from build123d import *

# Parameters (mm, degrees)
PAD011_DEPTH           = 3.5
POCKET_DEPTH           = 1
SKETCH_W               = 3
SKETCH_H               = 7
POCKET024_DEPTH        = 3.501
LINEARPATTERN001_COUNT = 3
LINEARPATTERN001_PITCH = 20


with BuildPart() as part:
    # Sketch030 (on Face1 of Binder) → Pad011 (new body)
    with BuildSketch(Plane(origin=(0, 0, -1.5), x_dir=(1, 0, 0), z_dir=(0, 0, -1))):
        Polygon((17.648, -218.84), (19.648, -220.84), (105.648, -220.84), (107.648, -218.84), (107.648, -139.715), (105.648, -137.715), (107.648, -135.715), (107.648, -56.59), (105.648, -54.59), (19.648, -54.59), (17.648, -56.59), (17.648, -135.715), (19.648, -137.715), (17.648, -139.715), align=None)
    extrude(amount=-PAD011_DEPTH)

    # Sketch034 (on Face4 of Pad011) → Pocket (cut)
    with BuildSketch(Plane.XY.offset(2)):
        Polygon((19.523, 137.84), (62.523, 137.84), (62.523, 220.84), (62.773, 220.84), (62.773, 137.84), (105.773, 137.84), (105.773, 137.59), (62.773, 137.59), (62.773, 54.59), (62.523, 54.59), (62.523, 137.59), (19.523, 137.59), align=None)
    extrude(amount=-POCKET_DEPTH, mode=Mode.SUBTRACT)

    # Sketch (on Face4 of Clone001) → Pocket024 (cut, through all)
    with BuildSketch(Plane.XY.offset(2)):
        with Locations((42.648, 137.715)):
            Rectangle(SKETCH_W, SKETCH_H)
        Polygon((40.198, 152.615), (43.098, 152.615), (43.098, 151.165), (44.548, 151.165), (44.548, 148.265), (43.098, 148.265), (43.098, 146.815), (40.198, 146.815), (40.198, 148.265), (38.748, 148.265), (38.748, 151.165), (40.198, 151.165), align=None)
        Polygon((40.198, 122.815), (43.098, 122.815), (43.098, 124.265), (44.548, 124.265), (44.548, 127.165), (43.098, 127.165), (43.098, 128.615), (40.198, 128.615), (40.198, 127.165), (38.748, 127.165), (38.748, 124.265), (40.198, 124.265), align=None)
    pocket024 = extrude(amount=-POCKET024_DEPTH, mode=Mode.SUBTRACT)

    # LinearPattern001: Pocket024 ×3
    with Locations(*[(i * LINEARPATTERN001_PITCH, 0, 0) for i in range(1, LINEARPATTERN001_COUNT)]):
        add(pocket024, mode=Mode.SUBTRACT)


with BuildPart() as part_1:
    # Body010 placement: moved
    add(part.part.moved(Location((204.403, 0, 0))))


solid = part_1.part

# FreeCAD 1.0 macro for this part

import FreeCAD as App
import Part
import Sketcher

V = App.Vector

doc = App.newDocument("Part")
body = doc.addObject("PartDesign::Body", "Body")

sketch1 = doc.addObject("Sketcher::SketchObject", "Sketch")
body.addObject(sketch1)
sketch1.AttachmentSupport = (doc.XY_Plane, [""])
sketch1.MapMode = "FlatFace"
sketch1.AttachmentOffset = App.Placement(V(0, 0, -1.5), App.Rotation())
sketch1.addGeometry([
    Part.LineSegment(V(17.6, 218.8, 0), V(19.6, 220.8, 0)),
    Part.LineSegment(V(19.6, 220.8, 0), V(105.6, 220.8, 0)),
    Part.LineSegment(V(105.6, 220.8, 0), V(107.6, 218.8, 0)),
    Part.LineSegment(V(107.6, 218.8, 0), V(107.6, 139.7, 0)),
    Part.LineSegment(V(107.6, 139.7, 0), V(105.6, 137.7, 0)),
    Part.LineSegment(V(105.6, 137.7, 0), V(107.6, 135.7, 0)),
    Part.LineSegment(V(107.6, 135.7, 0), V(107.6, 56.6, 0)),
    Part.LineSegment(V(107.6, 56.6, 0), V(105.6, 54.6, 0)),
    Part.LineSegment(V(105.6, 54.6, 0), V(19.6, 54.6, 0)),
    Part.LineSegment(V(19.6, 54.6, 0), V(17.6, 56.6, 0)),
    Part.LineSegment(V(17.6, 56.6, 0), V(17.6, 135.7, 0)),
    Part.LineSegment(V(17.6, 135.7, 0), V(19.6, 137.7, 0)),
    Part.LineSegment(V(19.6, 137.7, 0), V(17.6, 139.7, 0)),
    Part.LineSegment(V(17.6, 139.7, 0), V(17.6, 218.8, 0)),
], False)
sketch1.addConstraint([
    Sketcher.Constraint("Coincident", 0, 2, 1, 1),
    Sketcher.Constraint("Coincident", 1, 2, 2, 1),
    Sketcher.Constraint("Coincident", 2, 2, 3, 1),
    Sketcher.Constraint("Coincident", 3, 2, 4, 1),
    Sketcher.Constraint("Coincident", 4, 2, 5, 1),
    Sketcher.Constraint("Coincident", 5, 2, 6, 1),
    Sketcher.Constraint("Coincident", 6, 2, 7, 1),
    Sketcher.Constraint("Coincident", 7, 2, 8, 1),
    Sketcher.Constraint("Coincident", 8, 2, 9, 1),
    Sketcher.Constraint("Coincident", 9, 2, 10, 1),
    Sketcher.Constraint("Coincident", 10, 2, 11, 1),
    Sketcher.Constraint("Coincident", 11, 2, 12, 1),
    Sketcher.Constraint("Coincident", 12, 2, 13, 1),
    Sketcher.Constraint("Coincident", 13, 2, 0, 1),
    Sketcher.Constraint("Horizontal", 1),
    Sketcher.Constraint("Vertical", 3),
    Sketcher.Constraint("Vertical", 6),
    Sketcher.Constraint("Horizontal", 8),
    Sketcher.Constraint("Vertical", 10),
    Sketcher.Constraint("Vertical", 13),
    Sketcher.Constraint("Perpendicular", 0, 2),
    Sketcher.Constraint("Perpendicular", 2, 4),
    Sketcher.Constraint("Perpendicular", 4, 5),
    Sketcher.Constraint("Perpendicular", 5, 7),
    Sketcher.Constraint("Perpendicular", 7, 9),
    Sketcher.Constraint("Perpendicular", 9, 11),
    Sketcher.Constraint("Perpendicular", 11, 12),
    Sketcher.Constraint("Horizontal", 6, 2, 9, 2),
    Sketcher.Constraint("Horizontal", 5, 2, 10, 2),
    Sketcher.Constraint("Horizontal", 4, 2, 11, 2),
    Sketcher.Constraint("Horizontal", 3, 2, 12, 2),
    Sketcher.Constraint("Horizontal", 2, 2, 13, 2),
    Sketcher.Constraint("Vertical", 1, 2, 4, 2),
    Sketcher.Constraint("Vertical", 3, 2, 5, 2),
    Sketcher.Constraint("Vertical", 4, 2, 7, 2),
    Sketcher.Constraint("Vertical", 0, 2, 8, 2),
    Sketcher.Constraint("Equal", 3, 6),
    Sketcher.Constraint("DistanceX", 1, 1, 1, 2, 86.0),
    Sketcher.Constraint("DistanceX", 1, 2, 2, 2, 2.0),
    Sketcher.Constraint("DistanceY", 3, 2, 3, 1, 79.125),
    Sketcher.Constraint("DistanceY", -1, 1, 0, 2, 220.84),
    Sketcher.Constraint("DistanceX", -1, 1, 0, 2, 19.648),
])
pad1 = doc.addObject("PartDesign::Pad", "Pad")
body.addObject(pad1)
pad1.Profile = sketch1
pad1.Length = 3.5

sketch2 = doc.addObject("Sketcher::SketchObject", "Sketch001")
body.addObject(sketch2)
sketch2.AttachmentSupport = (doc.XY_Plane, [""])
sketch2.MapMode = "FlatFace"
sketch2.AttachmentOffset = App.Placement(V(0, 0, 2), App.Rotation())
sketch2.addGeometry([
    Part.LineSegment(V(62.52, 137.84, 0), V(19.52, 137.84, 0)),
    Part.LineSegment(V(19.52, 137.84, 0), V(19.52, 137.59, 0)),
    Part.LineSegment(V(19.52, 137.59, 0), V(62.52, 137.59, 0)),
    Part.LineSegment(V(62.52, 137.59, 0), V(62.52, 54.59, 0)),
    Part.LineSegment(V(62.52, 54.59, 0), V(62.77, 54.59, 0)),
    Part.LineSegment(V(62.77, 54.59, 0), V(62.77, 137.59, 0)),
    Part.LineSegment(V(62.77, 137.59, 0), V(105.77, 137.59, 0)),
    Part.LineSegment(V(105.77, 137.59, 0), V(105.77, 137.84, 0)),
    Part.LineSegment(V(105.77, 137.84, 0), V(62.77, 137.84, 0)),
    Part.LineSegment(V(62.77, 137.84, 0), V(62.77, 220.84, 0)),
    Part.LineSegment(V(62.77, 220.84, 0), V(62.52, 220.84, 0)),
    Part.LineSegment(V(62.52, 220.84, 0), V(62.52, 137.84, 0)),
], False)
sketch2.addConstraint([
    Sketcher.Constraint("Coincident", 0, 2, 1, 1),
    Sketcher.Constraint("Coincident", 1, 2, 2, 1),
    Sketcher.Constraint("Coincident", 2, 2, 3, 1),
    Sketcher.Constraint("Coincident", 3, 2, 4, 1),
    Sketcher.Constraint("Coincident", 4, 2, 5, 1),
    Sketcher.Constraint("Coincident", 5, 2, 6, 1),
    Sketcher.Constraint("Coincident", 6, 2, 7, 1),
    Sketcher.Constraint("Coincident", 7, 2, 8, 1),
    Sketcher.Constraint("Coincident", 8, 2, 9, 1),
    Sketcher.Constraint("Coincident", 9, 2, 10, 1),
    Sketcher.Constraint("Coincident", 10, 2, 11, 1),
    Sketcher.Constraint("Coincident", 11, 2, 0, 1),
    Sketcher.Constraint("Horizontal", 0),
    Sketcher.Constraint("Vertical", 1),
    Sketcher.Constraint("Horizontal", 2),
    Sketcher.Constraint("Vertical", 3),
    Sketcher.Constraint("Horizontal", 4),
    Sketcher.Constraint("Vertical", 5),
    Sketcher.Constraint("Horizontal", 6),
    Sketcher.Constraint("Vertical", 7),
    Sketcher.Constraint("Horizontal", 8),
    Sketcher.Constraint("Vertical", 9),
    Sketcher.Constraint("Horizontal", 10),
    Sketcher.Constraint("Vertical", 11),
    Sketcher.Constraint("Horizontal", 2, 2, 5, 2),
    Sketcher.Constraint("Horizontal", 0, 2, 7, 2),
    Sketcher.Constraint("Vertical", 5, 2, 8, 2),
    Sketcher.Constraint("Vertical", 3, 2, 10, 2),
    Sketcher.Constraint("Equal", 2, 6),
    Sketcher.Constraint("Equal", 10, 1),
    Sketcher.Constraint("Equal", 5, 9),
    Sketcher.Constraint("DistanceX", 0, 2, 0, 1, 43.0),
    Sketcher.Constraint("DistanceY", 3, 2, 3, 1, 83.0),
    Sketcher.Constraint("DistanceX", 4, 1, 4, 2, 0.25),
    Sketcher.Constraint("DistanceY", -1, 1, 0, 2, 137.84),
    Sketcher.Constraint("DistanceX", -1, 1, 0, 2, 19.523),
])
pocket1 = doc.addObject("PartDesign::Pocket", "Pocket")
body.addObject(pocket1)
pocket1.Profile = sketch2
pocket1.Length = 1

sketch3 = doc.addObject("Sketcher::SketchObject", "Sketch002")
body.addObject(sketch3)
sketch3.AttachmentSupport = (doc.XY_Plane, [""])
sketch3.MapMode = "FlatFace"
sketch3.AttachmentOffset = App.Placement(V(0, 0, 2), App.Rotation())
sketch3.addGeometry([
    Part.LineSegment(V(41.1, 141.2, 0), V(41.1, 134.2, 0)),
    Part.LineSegment(V(41.1, 134.2, 0), V(44.1, 134.2, 0)),
    Part.LineSegment(V(44.1, 134.2, 0), V(44.1, 141.2, 0)),
    Part.LineSegment(V(44.1, 141.2, 0), V(41.1, 141.2, 0)),
    Part.LineSegment(V(43.1, 152.6, 0), V(40.2, 152.6, 0)),
    Part.LineSegment(V(40.2, 152.6, 0), V(40.2, 151.2, 0)),
    Part.LineSegment(V(40.2, 151.2, 0), V(38.7, 151.2, 0)),
    Part.LineSegment(V(38.7, 151.2, 0), V(38.7, 148.3, 0)),
    Part.LineSegment(V(38.7, 148.3, 0), V(40.2, 148.3, 0)),
    Part.LineSegment(V(40.2, 148.3, 0), V(40.2, 146.8, 0)),
    Part.LineSegment(V(40.2, 146.8, 0), V(43.1, 146.8, 0)),
    Part.LineSegment(V(43.1, 146.8, 0), V(43.1, 148.3, 0)),
    Part.LineSegment(V(43.1, 148.3, 0), V(44.5, 148.3, 0)),
    Part.LineSegment(V(44.5, 148.3, 0), V(44.5, 151.2, 0)),
    Part.LineSegment(V(44.5, 151.2, 0), V(43.1, 151.2, 0)),
    Part.LineSegment(V(43.1, 151.2, 0), V(43.1, 152.6, 0)),
    Part.LineSegment(V(40.2, 122.8, 0), V(43.1, 122.8, 0)),
    Part.LineSegment(V(43.1, 122.8, 0), V(43.1, 124.3, 0)),
    Part.LineSegment(V(43.1, 124.3, 0), V(44.5, 124.3, 0)),
    Part.LineSegment(V(44.5, 124.3, 0), V(44.5, 127.2, 0)),
    Part.LineSegment(V(44.5, 127.2, 0), V(43.1, 127.2, 0)),
    Part.LineSegment(V(43.1, 127.2, 0), V(43.1, 128.6, 0)),
    Part.LineSegment(V(43.1, 128.6, 0), V(40.2, 128.6, 0)),
    Part.LineSegment(V(40.2, 128.6, 0), V(40.2, 127.2, 0)),
    Part.LineSegment(V(40.2, 127.2, 0), V(38.7, 127.2, 0)),
    Part.LineSegment(V(38.7, 127.2, 0), V(38.7, 124.3, 0)),
    Part.LineSegment(V(38.7, 124.3, 0), V(40.2, 124.3, 0)),
    Part.LineSegment(V(40.2, 124.3, 0), V(40.2, 122.8, 0)),
], False)
sketch3.addConstraint([
    Sketcher.Constraint("Coincident", 0, 2, 1, 1),
    Sketcher.Constraint("Coincident", 1, 2, 2, 1),
    Sketcher.Constraint("Coincident", 2, 2, 3, 1),
    Sketcher.Constraint("Coincident", 3, 2, 0, 1),
    Sketcher.Constraint("Coincident", 4, 2, 5, 1),
    Sketcher.Constraint("Coincident", 5, 2, 6, 1),
    Sketcher.Constraint("Coincident", 6, 2, 7, 1),
    Sketcher.Constraint("Coincident", 7, 2, 8, 1),
    Sketcher.Constraint("Coincident", 8, 2, 9, 1),
    Sketcher.Constraint("Coincident", 9, 2, 10, 1),
    Sketcher.Constraint("Coincident", 10, 2, 11, 1),
    Sketcher.Constraint("Coincident", 11, 2, 12, 1),
    Sketcher.Constraint("Coincident", 12, 2, 13, 1),
    Sketcher.Constraint("Coincident", 13, 2, 14, 1),
    Sketcher.Constraint("Coincident", 14, 2, 15, 1),
    Sketcher.Constraint("Coincident", 15, 2, 4, 1),
    Sketcher.Constraint("Coincident", 16, 2, 17, 1),
    Sketcher.Constraint("Coincident", 17, 2, 18, 1),
    Sketcher.Constraint("Coincident", 18, 2, 19, 1),
    Sketcher.Constraint("Coincident", 19, 2, 20, 1),
    Sketcher.Constraint("Coincident", 20, 2, 21, 1),
    Sketcher.Constraint("Coincident", 21, 2, 22, 1),
    Sketcher.Constraint("Coincident", 22, 2, 23, 1),
    Sketcher.Constraint("Coincident", 23, 2, 24, 1),
    Sketcher.Constraint("Coincident", 24, 2, 25, 1),
    Sketcher.Constraint("Coincident", 25, 2, 26, 1),
    Sketcher.Constraint("Coincident", 26, 2, 27, 1),
    Sketcher.Constraint("Coincident", 27, 2, 16, 1),
    Sketcher.Constraint("Vertical", 0),
    Sketcher.Constraint("Horizontal", 1),
    Sketcher.Constraint("Vertical", 2),
    Sketcher.Constraint("Horizontal", 3),
    Sketcher.Constraint("Horizontal", 4),
    Sketcher.Constraint("Vertical", 5),
    Sketcher.Constraint("Horizontal", 6),
    Sketcher.Constraint("Vertical", 7),
    Sketcher.Constraint("Horizontal", 8),
    Sketcher.Constraint("Vertical", 9),
    Sketcher.Constraint("Horizontal", 10),
    Sketcher.Constraint("Vertical", 11),
    Sketcher.Constraint("Horizontal", 12),
    Sketcher.Constraint("Vertical", 13),
    Sketcher.Constraint("Horizontal", 14),
    Sketcher.Constraint("Vertical", 15),
    Sketcher.Constraint("Horizontal", 16),
    Sketcher.Constraint("Vertical", 17),
    Sketcher.Constraint("Horizontal", 18),
    Sketcher.Constraint("Vertical", 19),
    Sketcher.Constraint("Horizontal", 20),
    Sketcher.Constraint("Vertical", 21),
    Sketcher.Constraint("Horizontal", 22),
    Sketcher.Constraint("Vertical", 23),
    Sketcher.Constraint("Horizontal", 24),
    Sketcher.Constraint("Vertical", 25),
    Sketcher.Constraint("Horizontal", 26),
    Sketcher.Constraint("Vertical", 27),
    Sketcher.Constraint("Horizontal", 8, 2, 11, 2),
    Sketcher.Constraint("Horizontal", 6, 2, 13, 2),
    Sketcher.Constraint("Horizontal", 20, 2, 23, 2),
    Sketcher.Constraint("Horizontal", 18, 2, 25, 2),
    Sketcher.Constraint("Vertical", 5, 2, 8, 2),
    Sketcher.Constraint("Vertical", 11, 2, 14, 2),
    Sketcher.Constraint("Vertical", 15, 2, 16, 2),
    Sketcher.Constraint("Vertical", 13, 2, 18, 2),
    Sketcher.Constraint("Vertical", 17, 2, 20, 2),
    Sketcher.Constraint("Vertical", 9, 2, 22, 2),
    Sketcher.Constraint("Vertical", 7, 2, 24, 2),
    Sketcher.Constraint("Vertical", 23, 2, 26, 2),
    Sketcher.Constraint("Equal", 8, 12),
    Sketcher.Constraint("Equal", 26, 5),
    Sketcher.Constraint("Equal", 22, 7),
    Sketcher.Constraint("Equal", 5, 9),
    Sketcher.Constraint("Equal", 15, 17),
    Sketcher.Constraint("Equal", 13, 19),
    Sketcher.Constraint("Equal", 17, 21),
    Sketcher.Constraint("DistanceX", 1, 1, 1, 2, 3.0),
    Sketcher.Constraint("DistanceY", 0, 2, 0, 1, 7.0),
    Sketcher.Constraint("DistanceX", 4, 2, 4, 1, 2.9),
    Sketcher.Constraint("DistanceY", 16, 2, 10, 2, 24.0),
    Sketcher.Constraint("DistanceX", 6, 2, 6, 1, 1.45),
    Sketcher.Constraint("DistanceY", 3, 2, 4, 2, 11.4),
    Sketcher.Constraint("DistanceX", 6, 2, 3, 2, 2.4),
    Sketcher.Constraint("DistanceX", -1, 1, 0, 2, 41.148),
    Sketcher.Constraint("DistanceY", -1, 1, 0, 2, 134.215),
])
pocket2 = doc.addObject("PartDesign::Pocket", "Pocket001")
body.addObject(pocket2)
pocket2.Profile = sketch3
pocket2.Type = "ThroughAll"
doc.recompute()

linearpattern = doc.addObject("PartDesign::LinearPattern", "LinearPattern")
body.addObject(linearpattern)
linearpattern.Originals = [pocket2]
linearpattern.Direction = (doc.X_Axis, [""])
linearpattern.Mode = "offset"
linearpattern.Offset = 20
linearpattern.Occurrences = 3
body.Tip = linearpattern
body2 = doc.addObject("PartDesign::Body", "Body001")
doc.recompute()

body.Placement = App.Placement(V(204.403, 0, 0), App.Rotation(V(0, 0, 1), 0))
boolean = doc.addObject("PartDesign::Boolean", "Boolean")
body2.addObject(boolean)
boolean.Type = "Fuse"
boolean.addObjects([body])

doc.recompute()
